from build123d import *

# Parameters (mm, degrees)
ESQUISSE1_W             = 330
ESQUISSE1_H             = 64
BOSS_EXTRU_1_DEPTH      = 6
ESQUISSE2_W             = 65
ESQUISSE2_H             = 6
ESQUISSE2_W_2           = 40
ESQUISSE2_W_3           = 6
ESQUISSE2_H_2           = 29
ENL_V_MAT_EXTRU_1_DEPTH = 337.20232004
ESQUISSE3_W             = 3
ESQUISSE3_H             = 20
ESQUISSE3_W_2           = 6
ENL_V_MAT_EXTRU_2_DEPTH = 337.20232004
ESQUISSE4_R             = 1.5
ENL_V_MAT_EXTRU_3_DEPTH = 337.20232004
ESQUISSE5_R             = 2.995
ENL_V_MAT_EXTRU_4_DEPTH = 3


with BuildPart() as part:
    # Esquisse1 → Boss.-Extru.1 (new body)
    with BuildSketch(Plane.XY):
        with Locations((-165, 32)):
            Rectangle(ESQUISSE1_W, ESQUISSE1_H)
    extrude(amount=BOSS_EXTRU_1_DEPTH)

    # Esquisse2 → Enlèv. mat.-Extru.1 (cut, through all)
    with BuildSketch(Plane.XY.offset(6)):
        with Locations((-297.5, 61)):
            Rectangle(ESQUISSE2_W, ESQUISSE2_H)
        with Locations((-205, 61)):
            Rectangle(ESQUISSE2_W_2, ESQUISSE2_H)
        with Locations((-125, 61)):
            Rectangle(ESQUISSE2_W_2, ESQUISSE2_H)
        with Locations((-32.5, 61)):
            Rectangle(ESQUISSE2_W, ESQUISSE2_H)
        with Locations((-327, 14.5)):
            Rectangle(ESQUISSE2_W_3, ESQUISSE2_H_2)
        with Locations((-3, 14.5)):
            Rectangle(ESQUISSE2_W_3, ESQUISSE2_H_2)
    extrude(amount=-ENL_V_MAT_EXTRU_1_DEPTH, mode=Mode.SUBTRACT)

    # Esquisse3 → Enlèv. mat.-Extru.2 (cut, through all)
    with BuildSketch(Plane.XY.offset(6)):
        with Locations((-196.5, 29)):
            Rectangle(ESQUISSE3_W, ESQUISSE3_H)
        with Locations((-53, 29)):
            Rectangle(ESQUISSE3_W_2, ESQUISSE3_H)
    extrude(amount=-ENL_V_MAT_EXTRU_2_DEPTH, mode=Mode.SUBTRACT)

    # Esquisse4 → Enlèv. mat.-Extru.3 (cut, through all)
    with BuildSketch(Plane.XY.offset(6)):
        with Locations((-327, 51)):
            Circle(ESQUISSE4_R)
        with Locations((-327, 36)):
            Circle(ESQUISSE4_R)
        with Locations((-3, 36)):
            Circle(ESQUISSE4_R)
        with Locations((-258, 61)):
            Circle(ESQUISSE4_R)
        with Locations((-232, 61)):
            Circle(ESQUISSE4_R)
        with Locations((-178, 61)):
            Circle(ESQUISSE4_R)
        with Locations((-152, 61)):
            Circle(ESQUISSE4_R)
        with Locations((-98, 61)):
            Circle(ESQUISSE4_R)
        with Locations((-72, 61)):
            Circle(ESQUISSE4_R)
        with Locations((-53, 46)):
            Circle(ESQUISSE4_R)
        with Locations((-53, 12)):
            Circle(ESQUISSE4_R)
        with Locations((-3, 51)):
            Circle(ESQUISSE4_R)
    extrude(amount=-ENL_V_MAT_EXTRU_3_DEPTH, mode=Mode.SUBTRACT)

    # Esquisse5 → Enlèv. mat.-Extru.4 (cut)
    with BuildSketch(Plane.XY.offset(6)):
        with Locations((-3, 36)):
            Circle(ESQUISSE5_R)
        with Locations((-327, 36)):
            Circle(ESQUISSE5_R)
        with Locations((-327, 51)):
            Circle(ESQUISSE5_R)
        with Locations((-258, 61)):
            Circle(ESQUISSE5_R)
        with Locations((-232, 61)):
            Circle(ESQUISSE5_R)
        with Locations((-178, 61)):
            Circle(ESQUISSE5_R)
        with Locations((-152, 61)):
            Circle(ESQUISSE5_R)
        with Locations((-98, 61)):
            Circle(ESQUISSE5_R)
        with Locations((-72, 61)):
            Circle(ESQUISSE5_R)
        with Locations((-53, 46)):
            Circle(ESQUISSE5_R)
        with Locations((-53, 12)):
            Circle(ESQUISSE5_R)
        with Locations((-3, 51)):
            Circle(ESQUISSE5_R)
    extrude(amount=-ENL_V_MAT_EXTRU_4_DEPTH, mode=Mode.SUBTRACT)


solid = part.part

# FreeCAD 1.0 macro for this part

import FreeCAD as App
import Part
import Sketcher

V = App.Vector
Q = App.Units.Quantity


def add_polygon(sketch, points):
    """Adds a closed chain of lines whose ends are joined by coincident constraints."""
    first, n = sketch.GeometryCount, len(points)
    for a, b in zip(points, points[1:] + points[:1]):
        sketch.addGeometry(Part.LineSegment(App.Vector(*a, 0), App.Vector(*b, 0)), False)
    for i in range(n):
        sketch.addConstraint(Sketcher.Constraint("Coincident", first + i, 2, first + (i + 1) % n, 1))

doc = App.newDocument("Part")
body = doc.addObject("PartDesign::Body", "Body")

# Sketch on XY plane
sketch1 = body.newObject("Sketcher::SketchObject", "Sketch")
sketch1.AttachmentSupport = (doc.getObject("XY_Plane"), [""])
sketch1.MapMode = "FlatFace"
add_polygon(sketch1, [(-330, 64), (-330, 0), (0, 0), (0, 64)])  # lines 0-3
sketch1.addConstraint(Sketcher.Constraint("Vertical", 0))
sketch1.addConstraint(Sketcher.Constraint("Horizontal", 1))
sketch1.addConstraint(Sketcher.Constraint("Vertical", 2))
sketch1.addConstraint(Sketcher.Constraint("Horizontal", 3))
sketch1.addConstraint(Sketcher.Constraint("Coincident", 1, 2, -1, 1))
sketch1.addConstraint(Sketcher.Constraint("DistanceX", 1, 1, 1, 2, Q("330 mm")))
sketch1.addConstraint(Sketcher.Constraint("DistanceY", 0, 2, 0, 1, Q("64 mm")))
pad1 = body.newObject("PartDesign::Pad", "Pad")
pad1.Profile = sketch1
pad1.Length = 6

# Sketch on XY plane
sketch2 = body.newObject("Sketcher::SketchObject", "Sketch001")
sketch2.AttachmentSupport = (doc.getObject("XY_Plane"), [""])
sketch2.MapMode = "FlatFace"
sketch2.AttachmentOffset = App.Placement(V(0, 0, 6), App.Rotation())
add_polygon(sketch2, [(-330, 64), (-330, 58), (-265, 58), (-265, 64)])  # lines 0-3
add_polygon(sketch2, [(-225, 64), (-225, 58), (-185, 58), (-185, 64)])  # lines 4-7
add_polygon(sketch2, [(-145, 64), (-145, 58), (-105, 58), (-105, 64)])  # lines 8-11
add_polygon(sketch2, [(-65, 64), (-65, 58), (0, 58), (0, 64)])  # lines 12-15
add_polygon(sketch2, [(-330, 29), (-330, 0), (-324, 0), (-324, 29)])  # lines 16-19
add_polygon(sketch2, [(-6, 29), (-6, 0), (0, 0), (0, 29)])  # lines 20-23
sketch2.addConstraint(Sketcher.Constraint("Vertical", 0))
sketch2.addConstraint(Sketcher.Constraint("Horizontal", 1))
sketch2.addConstraint(Sketcher.Constraint("Vertical", 2))
sketch2.addConstraint(Sketcher.Constraint("Horizontal", 3))
sketch2.addConstraint(Sketcher.Constraint("Vertical", 4))
sketch2.addConstraint(Sketcher.Constraint("Horizontal", 5))
sketch2.addConstraint(Sketcher.Constraint("Vertical", 6))
sketch2.addConstraint(Sketcher.Constraint("Horizontal", 7))
sketch2.addConstraint(Sketcher.Constraint("Vertical", 8))
sketch2.addConstraint(Sketcher.Constraint("Horizontal", 9))
sketch2.addConstraint(Sketcher.Constraint("Vertical", 10))
sketch2.addConstraint(Sketcher.Constraint("Horizontal", 11))
sketch2.addConstraint(Sketcher.Constraint("Vertical", 12))
sketch2.addConstraint(Sketcher.Constraint("Horizontal", 13))
sketch2.addConstraint(Sketcher.Constraint("Vertical", 14))
sketch2.addConstraint(Sketcher.Constraint("Horizontal", 15))
sketch2.addConstraint(Sketcher.Constraint("Vertical", 16))
sketch2.addConstraint(Sketcher.Constraint("Horizontal", 17))
sketch2.addConstraint(Sketcher.Constraint("Vertical", 18))
sketch2.addConstraint(Sketcher.Constraint("Horizontal", 19))
sketch2.addConstraint(Sketcher.Constraint("Vertical", 20))
sketch2.addConstraint(Sketcher.Constraint("Horizontal", 21))
sketch2.addConstraint(Sketcher.Constraint("Vertical", 22))
sketch2.addConstraint(Sketcher.Constraint("Horizontal", 23))
sketch2.addConstraint(Sketcher.Constraint("Coincident", 21, 2, -1, 1))
sketch2.addConstraint(Sketcher.Constraint("PointOnObject", 13, 2, -2))
sketch2.addConstraint(Sketcher.Constraint("PointOnObject", 16, 2, -1))
sketch2.addConstraint(Sketcher.Constraint("Horizontal", 1, 2, 4, 2))
sketch2.addConstraint(Sketcher.Constraint("Horizontal", 3, 2, 6, 2))
sketch2.addConstraint(Sketcher.Constraint("Horizontal", 5, 2, 8, 2))
sketch2.addConstraint(Sketcher.Constraint("Horizontal", 7, 2, 10, 2))
sketch2.addConstraint(Sketcher.Constraint("Horizontal", 9, 2, 12, 2))
sketch2.addConstraint(Sketcher.Constraint("Horizontal", 11, 2, 14, 2))
sketch2.addConstraint(Sketcher.Constraint("Horizontal", 19, 2, 22, 2))
sketch2.addConstraint(Sketcher.Constraint("Vertical", 3, 2, 16, 2))
sketch2.addConstraint(Sketcher.Constraint("Equal", 7, 9))
sketch2.addConstraint(Sketcher.Constraint("Equal", 3, 13))
sketch2.addConstraint(Sketcher.Constraint("Equal", 19, 21))
sketch2.addConstraint(Sketcher.Constraint("Equal", 23, 0))
sketch2.addConstraint(Sketcher.Constraint("DistanceX", 1, 1, 1, 2, Q("65 mm")))
sketch2.addConstraint(Sketcher.Constraint("DistanceX", 5, 1, 5, 2, Q("40 mm")))
sketch2.addConstraint(Sketcher.Constraint("DistanceX", 17, 1, 17, 2, Q("6 mm")))
sketch2.addConstraint(Sketcher.Constraint("DistanceY", 16, 2, 16, 1, Q("29 mm")))
sketch2.addConstraint(Sketcher.Constraint("DistanceX", 0, 2, -1, 1, Q("330 mm")))
sketch2.addConstraint(Sketcher.Constraint("DistanceY", -1, 1, 0, 2, Q("58 mm")))
sketch2.addConstraint(Sketcher.Constraint("DistanceX", 4, 2, -1, 1, Q("225 mm")))
sketch2.addConstraint(Sketcher.Constraint("DistanceX", 8, 2, -1, 1, Q("145 mm")))
pocket1 = body.newObject("PartDesign::Pocket", "Pocket")
pocket1.Profile = sketch2
pocket1.Type = "ThroughAll"

# Sketch on XY plane
sketch3 = body.newObject("Sketcher::SketchObject", "Sketch002")
sketch3.AttachmentSupport = (doc.getObject("XY_Plane"), [""])
sketch3.MapMode = "FlatFace"
sketch3.AttachmentOffset = App.Placement(V(0, 0, 6), App.Rotation())
add_polygon(sketch3, [(-198, 39), (-198, 19), (-195, 19), (-195, 39)])  # lines 0-3
add_polygon(sketch3, [(-56, 39), (-56, 19), (-50, 19), (-50, 39)])  # lines 4-7
sketch3.addConstraint(Sketcher.Constraint("Vertical", 0))
sketch3.addConstraint(Sketcher.Constraint("Horizontal", 1))
sketch3.addConstraint(Sketcher.Constraint("Vertical", 2))
sketch3.addConstraint(Sketcher.Constraint("Horizontal", 3))
sketch3.addConstraint(Sketcher.Constraint("Vertical", 4))
sketch3.addConstraint(Sketcher.Constraint("Horizontal", 5))
sketch3.addConstraint(Sketcher.Constraint("Vertical", 6))
sketch3.addConstraint(Sketcher.Constraint("Horizontal", 7))
sketch3.addConstraint(Sketcher.Constraint("Horizontal", 1, 2, 4, 2))
sketch3.addConstraint(Sketcher.Constraint("Horizontal", 3, 2, 6, 2))
sketch3.addConstraint(Sketcher.Constraint("DistanceX", 1, 1, 1, 2, Q("3 mm")))
sketch3.addConstraint(Sketcher.Constraint("DistanceX", 5, 1, 5, 2, Q("6 mm")))
sketch3.addConstraint(Sketcher.Constraint("DistanceY", 0, 2, 0, 1, Q("20 mm")))
sketch3.addConstraint(Sketcher.Constraint("DistanceX", 0, 2, -1, 1, Q("198 mm")))
sketch3.addConstraint(Sketcher.Constraint("DistanceY", -1, 1, 0, 2, Q("19 mm")))
sketch3.addConstraint(Sketcher.Constraint("DistanceX", 4, 2, -1, 1, Q("56 mm")))
pocket2 = body.newObject("PartDesign::Pocket", "Pocket001")
pocket2.Profile = sketch3
pocket2.Type = "ThroughAll"

# Sketch on XY plane
sketch4 = body.newObject("Sketcher::SketchObject", "Sketch003")
sketch4.AttachmentSupport = (doc.getObject("XY_Plane"), [""])
sketch4.MapMode = "FlatFace"
sketch4.AttachmentOffset = App.Placement(V(0, 0, 6), App.Rotation())
sketch4.addGeometry(Part.Circle(V(-327, 51, 0), V(0, 0, 1), 1.5), False)
sketch4.addGeometry(Part.Circle(V(-327, 36, 0), V(0, 0, 1), 1.5), False)
sketch4.addGeometry(Part.Circle(V(-3, 36, 0), V(0, 0, 1), 1.5), False)
sketch4.addGeometry(Part.Circle(V(-258, 61, 0), V(0, 0, 1), 1.5), False)
sketch4.addGeometry(Part.Circle(V(-232, 61, 0), V(0, 0, 1), 1.5), False)
sketch4.addGeometry(Part.Circle(V(-178, 61, 0), V(0, 0, 1), 1.5), False)
sketch4.addGeometry(Part.Circle(V(-152, 61, 0), V(0, 0, 1), 1.5), False)
sketch4.addGeometry(Part.Circle(V(-98, 61, 0), V(0, 0, 1), 1.5), False)
sketch4.addGeometry(Part.Circle(V(-72, 61, 0), V(0, 0, 1), 1.5), False)
sketch4.addGeometry(Part.Circle(V(-53, 46, 0), V(0, 0, 1), 1.5), False)
sketch4.addGeometry(Part.Circle(V(-53, 12, 0), V(0, 0, 1), 1.5), False)
sketch4.addGeometry(Part.Circle(V(-3, 51, 0), V(0, 0, 1), 1.5), False)
sketch4.addConstraint(Sketcher.Constraint("Equal", 0, 1))
sketch4.addConstraint(Sketcher.Constraint("Equal", 1, 2))
sketch4.addConstraint(Sketcher.Constraint("Equal", 2, 3))
sketch4.addConstraint(Sketcher.Constraint("Equal", 3, 4))
sketch4.addConstraint(Sketcher.Constraint("Equal", 4, 5))
sketch4.addConstraint(Sketcher.Constraint("Equal", 5, 6))
sketch4.addConstraint(Sketcher.Constraint("Equal", 6, 7))
sketch4.addConstraint(Sketcher.Constraint("Equal", 7, 8))
sketch4.addConstraint(Sketcher.Constraint("Equal", 8, 9))
sketch4.addConstraint(Sketcher.Constraint("Equal", 9, 10))
sketch4.addConstraint(Sketcher.Constraint("Equal", 10, 11))
sketch4.addConstraint(Sketcher.Constraint("Horizontal", 1, 3, 2, 3))
sketch4.addConstraint(Sketcher.Constraint("Horizontal", 3, 3, 4, 3))
sketch4.addConstraint(Sketcher.Constraint("Horizontal", 4, 3, 5, 3))
sketch4.addConstraint(Sketcher.Constraint("Horizontal", 5, 3, 6, 3))
sketch4.addConstraint(Sketcher.Constraint("Horizontal", 6, 3, 7, 3))
sketch4.addConstraint(Sketcher.Constraint("Horizontal", 7, 3, 8, 3))
sketch4.addConstraint(Sketcher.Constraint("Horizontal", 0, 3, 11, 3))
sketch4.addConstraint(Sketcher.Constraint("Vertical", 0, 3, 1, 3))
sketch4.addConstraint(Sketcher.Constraint("Vertical", 9, 3, 10, 3))
sketch4.addConstraint(Sketcher.Constraint("Vertical", 2, 3, 11, 3))
sketch4.addConstraint(Sketcher.Constraint("Diameter", 0, Q("3 mm")))
sketch4.addConstraint(Sketcher.Constraint("DistanceX", 0, 3, -1, 1, Q("327 mm")))
sketch4.addConstraint(Sketcher.Constraint("DistanceY", -1, 1, 0, 3, Q("51 mm")))
sketch4.addConstraint(Sketcher.Constraint("DistanceY", -1, 1, 1, 3, Q("36 mm")))
sketch4.addConstraint(Sketcher.Constraint("DistanceX", 2, 3, -1, 1, Q("3 mm")))
sketch4.addConstraint(Sketcher.Constraint("DistanceX", 3, 3, -1, 1, Q("258 mm")))
sketch4.addConstraint(Sketcher.Constraint("DistanceY", -1, 1, 3, 3, Q("61 mm")))
sketch4.addConstraint(Sketcher.Constraint("DistanceX", 4, 3, -1, 1, Q("232 mm")))
sketch4.addConstraint(Sketcher.Constraint("DistanceX", 5, 3, -1, 1, Q("178 mm")))
sketch4.addConstraint(Sketcher.Constraint("DistanceX", 6, 3, -1, 1, Q("152 mm")))
sketch4.addConstraint(Sketcher.Constraint("DistanceX", 7, 3, -1, 1, Q("98 mm")))
sketch4.addConstraint(Sketcher.Constraint("DistanceX", 8, 3, -1, 1, Q("72 mm")))
sketch4.addConstraint(Sketcher.Constraint("DistanceX", 9, 3, -1, 1, Q("53 mm")))
sketch4.addConstraint(Sketcher.Constraint("DistanceY", -1, 1, 9, 3, Q("46 mm")))
sketch4.addConstraint(Sketcher.Constraint("DistanceY", -1, 1, 10, 3, Q("12 mm")))
pocket3 = body.newObject("PartDesign::Pocket", "Pocket002")
pocket3.Profile = sketch4
pocket3.Type = "ThroughAll"

# Sketch on XY plane
sketch5 = body.newObject("Sketcher::SketchObject", "Sketch004")
sketch5.AttachmentSupport = (doc.getObject("XY_Plane"), [""])
sketch5.MapMode = "FlatFace"
sketch5.AttachmentOffset = App.Placement(V(0, 0, 6), App.Rotation())
sketch5.addGeometry(Part.Circle(V(-3, 36, 0), V(0, 0, 1), 3), False)
sketch5.addGeometry(Part.Circle(V(-327, 36, 0), V(0, 0, 1), 3), False)
sketch5.addGeometry(Part.Circle(V(-327, 51, 0), V(0, 0, 1), 3), False)
sketch5.addGeometry(Part.Circle(V(-258, 61, 0), V(0, 0, 1), 3), False)
sketch5.addGeometry(Part.Circle(V(-232, 61, 0), V(0, 0, 1), 3), False)
sketch5.addGeometry(Part.Circle(V(-178, 61, 0), V(0, 0, 1), 3), False)
sketch5.addGeometry(Part.Circle(V(-152, 61, 0), V(0, 0, 1), 3), False)
sketch5.addGeometry(Part.Circle(V(-98, 61, 0), V(0, 0, 1), 3), False)
sketch5.addGeometry(Part.Circle(V(-72, 61, 0), V(0, 0, 1), 3), False)
sketch5.addGeometry(Part.Circle(V(-53, 46, 0), V(0, 0, 1), 3), False)
sketch5.addGeometry(Part.Circle(V(-53, 12, 0), V(0, 0, 1), 3), False)
sketch5.addGeometry(Part.Circle(V(-3, 51, 0), V(0, 0, 1), 3), False)
sketch5.addConstraint(Sketcher.Constraint("Equal", 0, 1))
sketch5.addConstraint(Sketcher.Constraint("Equal", 1, 2))
sketch5.addConstraint(Sketcher.Constraint("Equal", 2, 3))
sketch5.addConstraint(Sketcher.Constraint("Equal", 3, 4))
sketch5.addConstraint(Sketcher.Constraint("Equal", 4, 5))
sketch5.addConstraint(Sketcher.Constraint("Equal", 5, 6))
sketch5.addConstraint(Sketcher.Constraint("Equal", 6, 7))
sketch5.addConstraint(Sketcher.Constraint("Equal", 7, 8))
sketch5.addConstraint(Sketcher.Constraint("Equal", 8, 9))
sketch5.addConstraint(Sketcher.Constraint("Equal", 9, 10))
sketch5.addConstraint(Sketcher.Constraint("Equal", 10, 11))
sketch5.addConstraint(Sketcher.Constraint("Horizontal", 0, 3, 1, 3))
sketch5.addConstraint(Sketcher.Constraint("Horizontal", 3, 3, 4, 3))
sketch5.addConstraint(Sketcher.Constraint("Horizontal", 4, 3, 5, 3))
sketch5.addConstraint(Sketcher.Constraint("Horizontal", 5, 3, 6, 3))
sketch5.addConstraint(Sketcher.Constraint("Horizontal", 6, 3, 7, 3))
sketch5.addConstraint(Sketcher.Constraint("Horizontal", 7, 3, 8, 3))
sketch5.addConstraint(Sketcher.Constraint("Horizontal", 2, 3, 11, 3))
sketch5.addConstraint(Sketcher.Constraint("Vertical", 1, 3, 2, 3))
sketch5.addConstraint(Sketcher.Constraint("Vertical", 9, 3, 10, 3))
sketch5.addConstraint(Sketcher.Constraint("Vertical", 0, 3, 11, 3))
sketch5.addConstraint(Sketcher.Constraint("Diameter", 0, Q("5.99 mm")))
sketch5.addConstraint(Sketcher.Constraint("DistanceX", 0, 3, -1, 1, Q("3 mm")))
sketch5.addConstraint(Sketcher.Constraint("DistanceY", -1, 1, 0, 3, Q("36 mm")))
sketch5.addConstraint(Sketcher.Constraint("DistanceX", 1, 3, -1, 1, Q("327 mm")))
sketch5.addConstraint(Sketcher.Constraint("DistanceY", -1, 1, 2, 3, Q("51 mm")))
sketch5.addConstraint(Sketcher.Constraint("DistanceX", 3, 3, -1, 1, Q("258 mm")))
sketch5.addConstraint(Sketcher.Constraint("DistanceY", -1, 1, 3, 3, Q("61 mm")))
sketch5.addConstraint(Sketcher.Constraint("DistanceX", 4, 3, -1, 1, Q("232 mm")))
sketch5.addConstraint(Sketcher.Constraint("DistanceX", 5, 3, -1, 1, Q("178 mm")))
sketch5.addConstraint(Sketcher.Constraint("DistanceX", 6, 3, -1, 1, Q("152 mm")))
sketch5.addConstraint(Sketcher.Constraint("DistanceX", 7, 3, -1, 1, Q("98 mm")))
sketch5.addConstraint(Sketcher.Constraint("DistanceX", 8, 3, -1, 1, Q("72 mm")))
sketch5.addConstraint(Sketcher.Constraint("DistanceX", 9, 3, -1, 1, Q("53 mm")))
sketch5.addConstraint(Sketcher.Constraint("DistanceY", -1, 1, 9, 3, Q("46 mm")))
sketch5.addConstraint(Sketcher.Constraint("DistanceY", -1, 1, 10, 3, Q("12 mm")))
pocket4 = body.newObject("PartDesign::Pocket", "Pocket003")
pocket4.Profile = sketch5
pocket4.Length = 3

doc.recompute()
